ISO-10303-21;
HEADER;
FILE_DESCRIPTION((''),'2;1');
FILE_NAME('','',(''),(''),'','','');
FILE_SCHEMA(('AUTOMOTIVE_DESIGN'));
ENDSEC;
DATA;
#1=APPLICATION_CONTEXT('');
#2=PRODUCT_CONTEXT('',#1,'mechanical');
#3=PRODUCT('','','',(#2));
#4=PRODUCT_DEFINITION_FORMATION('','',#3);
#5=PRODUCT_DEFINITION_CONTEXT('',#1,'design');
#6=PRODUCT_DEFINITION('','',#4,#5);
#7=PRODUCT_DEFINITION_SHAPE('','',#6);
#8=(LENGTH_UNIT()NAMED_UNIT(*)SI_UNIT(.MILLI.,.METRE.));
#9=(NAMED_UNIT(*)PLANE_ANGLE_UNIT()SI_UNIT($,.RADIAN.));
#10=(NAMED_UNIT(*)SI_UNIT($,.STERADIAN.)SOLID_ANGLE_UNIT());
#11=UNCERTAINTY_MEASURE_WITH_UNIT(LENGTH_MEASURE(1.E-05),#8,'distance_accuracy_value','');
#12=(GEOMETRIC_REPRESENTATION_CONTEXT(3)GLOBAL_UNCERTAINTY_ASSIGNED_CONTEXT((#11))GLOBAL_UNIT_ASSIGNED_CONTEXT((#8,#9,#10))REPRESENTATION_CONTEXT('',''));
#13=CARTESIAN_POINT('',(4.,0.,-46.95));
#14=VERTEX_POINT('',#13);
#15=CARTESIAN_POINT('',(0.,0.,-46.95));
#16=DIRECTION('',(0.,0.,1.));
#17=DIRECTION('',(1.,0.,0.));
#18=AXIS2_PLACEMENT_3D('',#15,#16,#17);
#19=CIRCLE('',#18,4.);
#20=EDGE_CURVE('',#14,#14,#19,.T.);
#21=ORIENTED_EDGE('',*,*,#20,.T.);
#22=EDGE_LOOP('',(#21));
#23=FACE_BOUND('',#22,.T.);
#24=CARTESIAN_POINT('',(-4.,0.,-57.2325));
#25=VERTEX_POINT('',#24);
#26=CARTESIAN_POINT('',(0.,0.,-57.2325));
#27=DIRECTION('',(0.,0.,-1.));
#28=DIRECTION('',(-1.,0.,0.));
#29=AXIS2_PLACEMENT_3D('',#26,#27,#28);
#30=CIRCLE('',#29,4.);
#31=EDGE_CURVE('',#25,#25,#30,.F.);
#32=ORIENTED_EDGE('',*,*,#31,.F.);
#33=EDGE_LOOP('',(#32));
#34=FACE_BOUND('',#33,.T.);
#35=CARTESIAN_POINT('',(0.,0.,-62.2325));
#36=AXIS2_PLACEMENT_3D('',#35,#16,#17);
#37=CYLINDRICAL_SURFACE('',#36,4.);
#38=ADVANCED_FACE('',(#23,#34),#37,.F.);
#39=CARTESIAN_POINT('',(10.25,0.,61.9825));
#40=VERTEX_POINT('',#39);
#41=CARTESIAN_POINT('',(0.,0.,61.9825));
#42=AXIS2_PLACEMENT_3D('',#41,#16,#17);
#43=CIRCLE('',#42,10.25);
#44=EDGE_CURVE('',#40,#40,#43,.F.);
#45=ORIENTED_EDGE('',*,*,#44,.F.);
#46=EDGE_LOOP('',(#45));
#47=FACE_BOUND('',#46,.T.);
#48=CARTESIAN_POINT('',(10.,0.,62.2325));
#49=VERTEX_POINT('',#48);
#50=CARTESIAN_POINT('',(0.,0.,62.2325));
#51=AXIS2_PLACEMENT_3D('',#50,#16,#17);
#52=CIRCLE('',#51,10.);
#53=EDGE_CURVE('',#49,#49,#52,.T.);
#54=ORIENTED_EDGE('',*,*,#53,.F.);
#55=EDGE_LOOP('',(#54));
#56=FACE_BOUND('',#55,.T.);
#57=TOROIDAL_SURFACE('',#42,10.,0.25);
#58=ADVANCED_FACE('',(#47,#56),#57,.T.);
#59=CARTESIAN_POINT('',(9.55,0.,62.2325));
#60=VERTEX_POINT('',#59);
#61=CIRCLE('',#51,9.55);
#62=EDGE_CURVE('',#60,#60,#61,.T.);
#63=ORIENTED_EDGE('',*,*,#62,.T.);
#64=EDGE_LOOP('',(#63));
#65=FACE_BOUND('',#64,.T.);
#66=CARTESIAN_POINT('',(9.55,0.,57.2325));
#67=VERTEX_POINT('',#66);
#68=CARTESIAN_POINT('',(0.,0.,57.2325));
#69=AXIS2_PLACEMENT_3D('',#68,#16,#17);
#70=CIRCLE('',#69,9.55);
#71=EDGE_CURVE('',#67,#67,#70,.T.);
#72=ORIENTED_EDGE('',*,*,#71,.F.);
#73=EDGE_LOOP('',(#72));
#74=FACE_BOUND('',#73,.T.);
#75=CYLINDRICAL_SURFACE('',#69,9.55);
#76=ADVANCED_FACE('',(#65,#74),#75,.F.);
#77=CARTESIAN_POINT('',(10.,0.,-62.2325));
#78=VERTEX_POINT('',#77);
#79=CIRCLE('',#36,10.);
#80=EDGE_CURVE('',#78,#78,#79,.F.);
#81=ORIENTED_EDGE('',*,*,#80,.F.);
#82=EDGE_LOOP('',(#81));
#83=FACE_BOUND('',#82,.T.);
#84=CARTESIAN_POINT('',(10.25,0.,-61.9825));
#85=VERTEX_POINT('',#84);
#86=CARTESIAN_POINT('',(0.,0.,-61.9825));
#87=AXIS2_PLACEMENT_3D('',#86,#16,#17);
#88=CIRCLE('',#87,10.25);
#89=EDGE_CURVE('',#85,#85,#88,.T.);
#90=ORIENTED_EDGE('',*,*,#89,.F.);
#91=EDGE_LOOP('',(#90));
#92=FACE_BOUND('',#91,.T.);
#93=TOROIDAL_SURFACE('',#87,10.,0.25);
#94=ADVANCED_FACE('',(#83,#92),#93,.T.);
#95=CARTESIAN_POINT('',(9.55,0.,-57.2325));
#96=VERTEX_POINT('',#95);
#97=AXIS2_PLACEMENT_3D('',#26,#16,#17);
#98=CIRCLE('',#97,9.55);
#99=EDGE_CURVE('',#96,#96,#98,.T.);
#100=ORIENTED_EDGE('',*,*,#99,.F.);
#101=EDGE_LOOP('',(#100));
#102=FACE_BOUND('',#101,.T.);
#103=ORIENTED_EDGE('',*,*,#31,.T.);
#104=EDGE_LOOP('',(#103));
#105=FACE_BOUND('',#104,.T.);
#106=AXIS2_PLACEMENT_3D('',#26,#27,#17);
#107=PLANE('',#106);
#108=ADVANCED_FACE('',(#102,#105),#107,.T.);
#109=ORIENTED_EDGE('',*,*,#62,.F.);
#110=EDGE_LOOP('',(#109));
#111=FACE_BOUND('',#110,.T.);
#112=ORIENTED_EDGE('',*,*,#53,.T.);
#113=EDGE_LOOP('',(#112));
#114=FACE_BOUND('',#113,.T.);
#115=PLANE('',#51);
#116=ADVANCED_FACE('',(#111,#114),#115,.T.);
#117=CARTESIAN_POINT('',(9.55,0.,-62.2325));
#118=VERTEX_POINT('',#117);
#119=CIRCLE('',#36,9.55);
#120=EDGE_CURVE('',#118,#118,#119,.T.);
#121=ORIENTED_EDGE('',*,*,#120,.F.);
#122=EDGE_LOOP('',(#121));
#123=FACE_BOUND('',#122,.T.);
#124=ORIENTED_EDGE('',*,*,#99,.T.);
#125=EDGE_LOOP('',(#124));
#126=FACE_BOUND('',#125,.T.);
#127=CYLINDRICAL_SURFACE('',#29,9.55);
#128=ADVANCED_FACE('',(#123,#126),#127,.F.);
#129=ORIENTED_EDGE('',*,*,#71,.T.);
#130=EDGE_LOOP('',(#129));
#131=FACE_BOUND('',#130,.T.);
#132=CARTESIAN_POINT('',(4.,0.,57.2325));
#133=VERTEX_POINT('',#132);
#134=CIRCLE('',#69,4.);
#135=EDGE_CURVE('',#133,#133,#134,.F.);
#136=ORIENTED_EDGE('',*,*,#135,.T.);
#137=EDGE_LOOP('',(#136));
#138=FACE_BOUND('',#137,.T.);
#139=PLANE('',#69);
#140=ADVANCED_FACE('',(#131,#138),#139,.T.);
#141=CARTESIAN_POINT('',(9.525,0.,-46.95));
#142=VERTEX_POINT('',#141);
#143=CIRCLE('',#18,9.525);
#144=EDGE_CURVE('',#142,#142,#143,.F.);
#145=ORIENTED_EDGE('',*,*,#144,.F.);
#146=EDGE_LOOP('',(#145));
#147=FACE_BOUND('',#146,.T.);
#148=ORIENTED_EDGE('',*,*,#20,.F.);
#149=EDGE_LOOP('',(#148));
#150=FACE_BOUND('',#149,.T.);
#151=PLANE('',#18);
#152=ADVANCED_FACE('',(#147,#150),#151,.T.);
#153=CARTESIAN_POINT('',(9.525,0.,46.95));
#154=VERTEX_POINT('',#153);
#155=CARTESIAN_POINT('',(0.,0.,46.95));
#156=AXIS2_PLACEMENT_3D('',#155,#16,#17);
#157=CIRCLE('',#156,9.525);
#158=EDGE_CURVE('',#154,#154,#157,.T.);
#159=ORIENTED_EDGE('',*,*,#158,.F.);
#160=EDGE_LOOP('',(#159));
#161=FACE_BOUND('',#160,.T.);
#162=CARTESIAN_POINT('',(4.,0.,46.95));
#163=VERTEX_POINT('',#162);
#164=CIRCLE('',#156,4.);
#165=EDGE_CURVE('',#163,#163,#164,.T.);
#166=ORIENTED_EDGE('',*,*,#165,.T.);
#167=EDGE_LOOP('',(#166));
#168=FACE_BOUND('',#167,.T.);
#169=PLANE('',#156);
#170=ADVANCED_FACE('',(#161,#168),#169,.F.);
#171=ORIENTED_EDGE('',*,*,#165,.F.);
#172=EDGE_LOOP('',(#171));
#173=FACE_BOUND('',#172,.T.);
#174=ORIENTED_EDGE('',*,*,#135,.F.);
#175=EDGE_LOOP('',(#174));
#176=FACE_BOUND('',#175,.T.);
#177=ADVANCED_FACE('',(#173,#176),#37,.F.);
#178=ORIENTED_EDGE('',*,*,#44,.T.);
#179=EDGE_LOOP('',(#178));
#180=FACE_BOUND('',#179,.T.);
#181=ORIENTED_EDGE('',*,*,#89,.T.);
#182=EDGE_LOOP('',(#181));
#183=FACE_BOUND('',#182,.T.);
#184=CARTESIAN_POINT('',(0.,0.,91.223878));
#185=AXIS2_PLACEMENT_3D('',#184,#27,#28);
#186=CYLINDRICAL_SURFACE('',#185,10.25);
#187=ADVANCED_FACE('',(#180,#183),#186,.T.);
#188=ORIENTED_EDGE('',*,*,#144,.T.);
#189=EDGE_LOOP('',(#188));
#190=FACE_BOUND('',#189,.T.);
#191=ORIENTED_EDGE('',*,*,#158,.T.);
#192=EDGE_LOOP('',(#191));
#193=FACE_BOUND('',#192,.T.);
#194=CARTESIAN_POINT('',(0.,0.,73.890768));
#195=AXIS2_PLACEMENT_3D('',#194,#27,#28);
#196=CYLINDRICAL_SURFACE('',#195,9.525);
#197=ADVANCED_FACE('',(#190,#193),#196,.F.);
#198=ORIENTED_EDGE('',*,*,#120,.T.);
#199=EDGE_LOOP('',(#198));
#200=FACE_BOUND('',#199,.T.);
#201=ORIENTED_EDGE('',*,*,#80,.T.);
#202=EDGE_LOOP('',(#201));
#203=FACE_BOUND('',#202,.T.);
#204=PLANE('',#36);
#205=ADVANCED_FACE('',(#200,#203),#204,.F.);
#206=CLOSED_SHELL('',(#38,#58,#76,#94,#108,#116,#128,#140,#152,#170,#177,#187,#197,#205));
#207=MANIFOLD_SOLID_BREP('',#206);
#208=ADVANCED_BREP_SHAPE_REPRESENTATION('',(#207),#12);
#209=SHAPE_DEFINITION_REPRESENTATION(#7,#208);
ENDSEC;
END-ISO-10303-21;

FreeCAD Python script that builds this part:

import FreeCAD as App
import Part
import Sketcher

V = App.Vector
Q = App.Units.Quantity


def edges_at(feature, points):
    """Names of the edges that pass closest to the given points."""
    edges = feature.Shape.Edges
    near = lambda p: min(range(len(edges)), key=lambda i: edges[i].distToShape(Part.Vertex(*p))[0])
    return sorted({f"Edge{near(p) + 1}" for p in points})

doc = App.newDocument("Part")
body = doc.addObject("PartDesign::Body", "Body")

sketch1 = doc.addObject("Sketcher::SketchObject", "Sketch")
body.addObject(sketch1)
sketch1.AttachmentSupport = (doc.XY_Plane, [""])
sketch1.MapMode = "FlatFace"
sketch1.addGeometry(Part.Circle(V(0, 0, 0), V(0, 0, 1), 10), False)
sketch1.addConstraint([
    Sketcher.Constraint("Coincident", 0, 3, -1, 1),
    Sketcher.Constraint("Diameter", 0, Q("20.5 mm")),
])
pad1 = doc.addObject("PartDesign::Pad", "Pad")
body.addObject(pad1)
pad1.Profile = sketch1
pad1.Type = "TwoLengths"
pad1.Length = 62.2325
pad1.Length2 = 62.2325

sketch2 = doc.addObject("Sketcher::SketchObject", "Sketch001")
body.addObject(sketch2)
sketch2.AttachmentSupport = (doc.XY_Plane, [""])
sketch2.MapMode = "FlatFace"
sketch2.AttachmentOffset = App.Placement(V(0, 0, -46.95), App.Rotation())
sketch2.addGeometry(Part.Circle(V(0, 0, 0), V(0, 0, 1), 10), False)
sketch2.addConstraint([
    Sketcher.Constraint("Coincident", 0, 3, -1, 1),
    Sketcher.Constraint("Diameter", 0, Q("19.05 mm")),
])
pocket1 = doc.addObject("PartDesign::Pocket", "Pocket")
body.addObject(pocket1)
pocket1.Profile = sketch2
pocket1.Length = 93.9
pocket1.Reversed = True

sketch3 = doc.addObject("Sketcher::SketchObject", "Sketch002")
body.addObject(sketch3)
sketch3.AttachmentSupport = (doc.XY_Plane, [""])
sketch3.MapMode = "FlatFace"
sketch3.addGeometry(Part.Circle(V(0, 0, 0), V(0, 0, 1), 4), False)
sketch3.addConstraint([
    Sketcher.Constraint("Coincident", 0, 3, -1, 1),
    Sketcher.Constraint("Diameter", 0, Q("8 mm")),
])
pocket2 = doc.addObject("PartDesign::Pocket", "Pocket001")
body.addObject(pocket2)
pocket2.Profile = sketch3
pocket2.Type = "ThroughAll"
pocket2.Midplane = True
doc.recompute()

fillet = doc.addObject("PartDesign::Fillet", "Fillet")
body.addObject(fillet)
fillet.Base = (pocket2, edges_at(pocket2, [(-10.25, 0, -62.233), (-10.25, 0, 62.233)]))
fillet.Radius = 0.25

sketch4 = doc.addObject("Sketcher::SketchObject", "Sketch003")
body.addObject(sketch4)
sketch4.AttachmentSupport = (doc.XY_Plane, [""])
sketch4.MapMode = "FlatFace"
sketch4.AttachmentOffset = App.Placement(V(0, 0, 62.2325), App.Rotation())
sketch4.addGeometry(Part.Circle(V(0, 0, 0), V(0, 0, 1), 10), False)
sketch4.addConstraint([
    Sketcher.Constraint("Coincident", 0, 3, -1, 1),
    Sketcher.Constraint("Diameter", 0, Q("19.1 mm")),
])
pocket3 = doc.addObject("PartDesign::Pocket", "Pocket002")
body.addObject(pocket3)
pocket3.Profile = sketch4
pocket3.Length = 5
doc.recompute()

mirrored = doc.addObject("PartDesign::Mirrored", "Mirrored")
body.addObject(mirrored)
mirrored.Originals = [pocket3]
mirrored.MirrorPlane = (doc.XY_Plane, [""])
body.Tip = mirrored

doc.recompute()
